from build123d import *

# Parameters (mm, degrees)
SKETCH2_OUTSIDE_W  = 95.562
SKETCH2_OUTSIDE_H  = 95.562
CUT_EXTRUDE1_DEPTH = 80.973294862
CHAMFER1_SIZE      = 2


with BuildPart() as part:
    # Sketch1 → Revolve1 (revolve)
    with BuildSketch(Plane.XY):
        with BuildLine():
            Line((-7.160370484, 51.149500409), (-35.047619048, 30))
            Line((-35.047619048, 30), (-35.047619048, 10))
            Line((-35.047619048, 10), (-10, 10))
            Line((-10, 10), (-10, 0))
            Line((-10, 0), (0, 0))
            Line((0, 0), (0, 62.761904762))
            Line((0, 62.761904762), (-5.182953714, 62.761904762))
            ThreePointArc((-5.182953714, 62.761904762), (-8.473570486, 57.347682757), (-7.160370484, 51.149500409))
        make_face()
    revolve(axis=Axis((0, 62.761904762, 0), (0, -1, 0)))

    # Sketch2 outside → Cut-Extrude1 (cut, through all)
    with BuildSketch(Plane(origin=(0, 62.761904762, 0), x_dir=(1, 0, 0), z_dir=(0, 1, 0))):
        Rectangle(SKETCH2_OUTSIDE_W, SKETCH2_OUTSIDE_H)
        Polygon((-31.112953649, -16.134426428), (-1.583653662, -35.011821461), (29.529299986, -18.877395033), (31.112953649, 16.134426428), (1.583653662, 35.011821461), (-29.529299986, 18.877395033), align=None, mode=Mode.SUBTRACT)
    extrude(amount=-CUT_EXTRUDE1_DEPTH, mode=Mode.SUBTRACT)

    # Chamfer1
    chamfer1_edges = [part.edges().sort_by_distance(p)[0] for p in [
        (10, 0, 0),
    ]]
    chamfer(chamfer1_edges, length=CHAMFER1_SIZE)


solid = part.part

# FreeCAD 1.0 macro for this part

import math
import FreeCAD as App
import Part
import Sketcher
Q = App.Units.Quantity


def edges_at(feature, points):
    """Names of the edges that pass closest to the given points."""
    edges = feature.Shape.Edges
    near = lambda p: min(range(len(edges)), key=lambda i: edges[i].distToShape(Part.Vertex(*p))[0])
    return sorted({f"Edge{near(p) + 1}" for p in points})


def add_polygon(sketch, points):
    """Adds a closed chain of lines whose ends are joined by coincident constraints."""
    first, n = sketch.GeometryCount, len(points)
    for a, b in zip(points, points[1:] + points[:1]):
        sketch.addGeometry(Part.LineSegment(App.Vector(*a, 0), App.Vector(*b, 0)), False)
    for i in range(n):
        sketch.addConstraint(Sketcher.Constraint("Coincident", first + i, 2, first + (i + 1) % n, 1))

doc = App.newDocument("Part")
body = doc.addObject("PartDesign::Body", "Body")

# Sketch on XY plane
sketch1 = body.newObject("Sketcher::SketchObject", "Sketch")
sketch1.AttachmentSupport = (doc.getObject("XY_Plane"), [""])
sketch1.MapMode = "FlatFace"
sketch1.addGeometry([
    Part.LineSegment(App.Vector(-7, 51, 0), App.Vector(-35, 30, 0)),  # 0
    Part.LineSegment(App.Vector(-35, 30, 0), App.Vector(-35, 10, 0)),  # 1
    Part.LineSegment(App.Vector(-35, 10, 0), App.Vector(-10, 10, 0)),  # 2
    Part.LineSegment(App.Vector(-10, 10, 0), App.Vector(-10, 0, 0)),  # 3
    Part.LineSegment(App.Vector(-10, 0, 0), App.Vector(0, 0, 0)),  # 4
    Part.LineSegment(App.Vector(0, 0, 0), App.Vector(0, 63, 0)),  # 5
    Part.LineSegment(App.Vector(0, 63, 0), App.Vector(-5, 63, 0)),  # 6
    Part.ArcOfCircle(Part.Circle(App.Vector(0, 56, 0), App.Vector(0, 0, 1), 9), math.radians(127), math.radians(214)),  # 7
], False)
sketch1.addConstraint([
    Sketcher.Constraint("Coincident", 0, 2, 1, 1),
    Sketcher.Constraint("Coincident", 1, 2, 2, 1),
    Sketcher.Constraint("Coincident", 2, 2, 3, 1),
    Sketcher.Constraint("Coincident", 3, 2, 4, 1),
    Sketcher.Constraint("Coincident", 4, 2, 5, 1),
    Sketcher.Constraint("Coincident", 5, 2, 6, 1),
    Sketcher.Constraint("Coincident", 6, 2, 7, 1),
    Sketcher.Constraint("Coincident", 7, 2, 0, 1),
    Sketcher.Constraint("Vertical", 1),
    Sketcher.Constraint("Horizontal", 2),
    Sketcher.Constraint("Vertical", 3),
    Sketcher.Constraint("Horizontal", 4),
    Sketcher.Constraint("Vertical", 5),
    Sketcher.Constraint("Horizontal", 6),
    Sketcher.Constraint("Coincident", 4, 2, -1, 1),
    Sketcher.Constraint("PointOnObject", 7, 3, -2),
    Sketcher.Constraint("Equal", 4, 3),
    Sketcher.Constraint("DistanceX", 4, 1, 4, 2, Q("10 mm")),
    Sketcher.Constraint("DistanceY", 1, 2, 1, 1, Q("20 mm")),
    Sketcher.Constraint("Distance", 0, Q("35 mm")),
    Sketcher.Constraint("Radius", 7, Q("8.595546 mm")),
    Sketcher.Constraint("DistanceX", 2, 1, 2, 2, Q("25.047619 mm")),
    Sketcher.Constraint("DistanceY", -1, 1, 7, 2, Q("51.1495 mm")),
    Sketcher.Constraint("DistanceX", 6, 2, 6, 1, Q("5.182954 mm")),
])
revolution = body.newObject("PartDesign::Revolution", "Revolution")
revolution.Profile = sketch1
revolution.ReferenceAxis = (sketch1, ["V_Axis"])
revolution.Angle = 360

# Sketch on XZ plane
sketch2 = body.newObject("Sketcher::SketchObject", "Sketch001")
sketch2.AttachmentSupport = (doc.getObject("XZ_Plane"), [""])
sketch2.MapMode = "FlatFace"
sketch2.AttachmentOffset = App.Placement(App.Vector(0, 0, -62.761905), App.Rotation())
add_polygon(sketch2, [(-48, -48), (-48, 48), (48, 48), (48, -48)])  # lines 0-3
add_polygon(sketch2, [(-2, 35), (-31, 16), (-30, -19), (2, -35), (31, -16), (30, 19)])  # lines 4-9
sketch2.addConstraint([
    Sketcher.Constraint("Vertical", 0),
    Sketcher.Constraint("Horizontal", 1),
    Sketcher.Constraint("Vertical", 2),
    Sketcher.Constraint("Horizontal", 3),
    Sketcher.Constraint("Symmetric", 0, 2, 2, 2, -1, 1),
    Sketcher.Constraint("Symmetric", 4, 2, 7, 2, -1, 1),
    Sketcher.Constraint("Symmetric", 5, 2, 8, 2, -1, 1),
    Sketcher.Constraint("Symmetric", 6, 2, 9, 2, -1, 1),
    Sketcher.Constraint("Equal", 3, 0),
    Sketcher.Constraint("Equal", 4, 5),
    Sketcher.Constraint("Equal", 5, 6),
    Sketcher.Constraint("DistanceX", 1, 1, 1, 2, Q("95.562 mm")),
    Sketcher.Constraint("DistanceX", 5, 2, -1, 1, Q("29.5293 mm")),
    Sketcher.Constraint("DistanceX", 6, 2, 7, 2, Q("29.5293 mm")),
    Sketcher.Constraint("Distance", 4, Q("35.047619 mm")),
    Sketcher.Constraint("DistanceY", 6, 2, -1, 1, Q("35.011821 mm")),
])
pocket1 = body.newObject("PartDesign::Pocket", "Pocket")
pocket1.Profile = sketch2
pocket1.Type = "ThroughAll"
pocket1.Reversed = True
doc.recompute()

chamfer = body.newObject("PartDesign::Chamfer", "Chamfer")
chamfer.Base = (pocket1, edges_at(pocket1, [(10, 0, 0)]))
chamfer.Size = 2

doc.recompute()
